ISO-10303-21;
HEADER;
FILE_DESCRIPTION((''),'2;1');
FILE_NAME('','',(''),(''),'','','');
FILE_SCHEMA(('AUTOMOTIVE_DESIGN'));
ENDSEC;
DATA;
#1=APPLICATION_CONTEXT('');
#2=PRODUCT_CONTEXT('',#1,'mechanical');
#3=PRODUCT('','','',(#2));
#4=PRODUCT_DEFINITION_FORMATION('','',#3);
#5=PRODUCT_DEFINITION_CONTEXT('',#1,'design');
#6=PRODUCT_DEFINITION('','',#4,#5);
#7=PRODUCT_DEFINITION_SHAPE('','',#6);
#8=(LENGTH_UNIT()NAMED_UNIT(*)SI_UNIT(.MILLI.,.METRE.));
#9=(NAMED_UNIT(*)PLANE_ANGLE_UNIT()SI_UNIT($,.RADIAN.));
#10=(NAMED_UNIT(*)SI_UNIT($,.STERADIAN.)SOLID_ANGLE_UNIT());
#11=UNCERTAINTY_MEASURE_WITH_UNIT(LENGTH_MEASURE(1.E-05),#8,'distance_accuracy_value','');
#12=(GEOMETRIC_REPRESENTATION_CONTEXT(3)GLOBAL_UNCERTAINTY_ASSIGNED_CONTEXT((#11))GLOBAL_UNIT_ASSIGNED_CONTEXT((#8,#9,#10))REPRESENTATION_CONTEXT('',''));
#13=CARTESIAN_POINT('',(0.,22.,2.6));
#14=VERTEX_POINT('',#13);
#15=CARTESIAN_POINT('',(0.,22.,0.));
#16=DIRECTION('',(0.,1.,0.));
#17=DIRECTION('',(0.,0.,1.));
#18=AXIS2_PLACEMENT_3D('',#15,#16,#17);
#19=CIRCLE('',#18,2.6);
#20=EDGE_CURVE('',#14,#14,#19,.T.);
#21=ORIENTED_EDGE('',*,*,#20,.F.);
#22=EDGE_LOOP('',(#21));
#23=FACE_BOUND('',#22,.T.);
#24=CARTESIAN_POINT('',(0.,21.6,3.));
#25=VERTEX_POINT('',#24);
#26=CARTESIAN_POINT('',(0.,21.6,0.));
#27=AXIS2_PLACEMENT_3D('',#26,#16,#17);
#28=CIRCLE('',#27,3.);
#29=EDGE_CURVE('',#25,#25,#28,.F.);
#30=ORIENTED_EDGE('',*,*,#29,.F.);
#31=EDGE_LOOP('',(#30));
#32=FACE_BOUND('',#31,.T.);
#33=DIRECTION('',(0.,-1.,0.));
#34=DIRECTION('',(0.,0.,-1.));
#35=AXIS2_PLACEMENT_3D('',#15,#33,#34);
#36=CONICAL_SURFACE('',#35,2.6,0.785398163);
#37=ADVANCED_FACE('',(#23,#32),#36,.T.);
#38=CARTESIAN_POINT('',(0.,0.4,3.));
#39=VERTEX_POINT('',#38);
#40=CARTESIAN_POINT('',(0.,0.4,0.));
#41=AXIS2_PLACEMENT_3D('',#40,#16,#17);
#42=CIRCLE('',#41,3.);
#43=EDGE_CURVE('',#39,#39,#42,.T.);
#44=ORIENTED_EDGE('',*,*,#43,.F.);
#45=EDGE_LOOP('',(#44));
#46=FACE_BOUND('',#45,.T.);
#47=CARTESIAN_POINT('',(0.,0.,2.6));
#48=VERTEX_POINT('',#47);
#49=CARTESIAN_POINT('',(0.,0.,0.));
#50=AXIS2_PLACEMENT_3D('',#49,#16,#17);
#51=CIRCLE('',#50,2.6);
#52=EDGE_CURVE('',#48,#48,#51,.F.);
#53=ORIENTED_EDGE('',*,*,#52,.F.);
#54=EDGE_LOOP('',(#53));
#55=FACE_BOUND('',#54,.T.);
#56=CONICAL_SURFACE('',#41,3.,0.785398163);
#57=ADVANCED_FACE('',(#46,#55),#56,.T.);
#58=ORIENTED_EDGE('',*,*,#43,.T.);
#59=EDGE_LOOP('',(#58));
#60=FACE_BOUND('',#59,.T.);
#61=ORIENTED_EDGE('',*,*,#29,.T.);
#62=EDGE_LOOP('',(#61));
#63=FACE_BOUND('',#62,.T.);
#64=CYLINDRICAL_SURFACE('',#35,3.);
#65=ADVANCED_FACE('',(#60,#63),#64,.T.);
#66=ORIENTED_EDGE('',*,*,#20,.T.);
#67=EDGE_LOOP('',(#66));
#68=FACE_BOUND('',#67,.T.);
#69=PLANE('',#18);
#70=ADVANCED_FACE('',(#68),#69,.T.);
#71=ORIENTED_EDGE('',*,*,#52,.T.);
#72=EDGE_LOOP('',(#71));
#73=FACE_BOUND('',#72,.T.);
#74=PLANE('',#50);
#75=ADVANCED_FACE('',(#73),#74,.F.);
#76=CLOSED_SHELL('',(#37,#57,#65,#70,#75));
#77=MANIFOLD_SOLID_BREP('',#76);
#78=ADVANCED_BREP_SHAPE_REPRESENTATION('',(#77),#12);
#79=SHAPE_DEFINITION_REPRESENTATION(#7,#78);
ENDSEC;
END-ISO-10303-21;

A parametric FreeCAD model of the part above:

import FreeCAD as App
import Part
import Sketcher
Q = App.Units.Quantity


def edges_at(feature, points):
    """Names of the edges that pass closest to the given points."""
    edges = feature.Shape.Edges
    near = lambda p: min(range(len(edges)), key=lambda i: edges[i].distToShape(Part.Vertex(*p))[0])
    return sorted({f"Edge{near(p) + 1}" for p in points})

doc = App.newDocument("Part")
body = doc.addObject("PartDesign::Body", "Body")

# Sketch on XZ plane
sketch1 = body.newObject("Sketcher::SketchObject", "Sketch")
sketch1.AttachmentSupport = (doc.getObject("XZ_Plane"), [""])
sketch1.MapMode = "FlatFace"
sketch1.addGeometry(Part.Circle(App.Vector(0, 0, 0), App.Vector(0, 0, 1), 3), False)
sketch1.addConstraint([
    Sketcher.Constraint("Coincident", 0, 3, -1, 1),
    Sketcher.Constraint("Diameter", 0, Q("6 mm")),
])
pad1 = body.newObject("PartDesign::Pad", "Pad")
pad1.Profile = sketch1
pad1.Length = 22
pad1.Reversed = True
doc.recompute()

chamfer = body.newObject("PartDesign::Chamfer", "Chamfer")
chamfer.Base = (pad1, edges_at(pad1, [(0, 0, -3), (0, 22, -3)]))
chamfer.Size = 0.4

doc.recompute()
